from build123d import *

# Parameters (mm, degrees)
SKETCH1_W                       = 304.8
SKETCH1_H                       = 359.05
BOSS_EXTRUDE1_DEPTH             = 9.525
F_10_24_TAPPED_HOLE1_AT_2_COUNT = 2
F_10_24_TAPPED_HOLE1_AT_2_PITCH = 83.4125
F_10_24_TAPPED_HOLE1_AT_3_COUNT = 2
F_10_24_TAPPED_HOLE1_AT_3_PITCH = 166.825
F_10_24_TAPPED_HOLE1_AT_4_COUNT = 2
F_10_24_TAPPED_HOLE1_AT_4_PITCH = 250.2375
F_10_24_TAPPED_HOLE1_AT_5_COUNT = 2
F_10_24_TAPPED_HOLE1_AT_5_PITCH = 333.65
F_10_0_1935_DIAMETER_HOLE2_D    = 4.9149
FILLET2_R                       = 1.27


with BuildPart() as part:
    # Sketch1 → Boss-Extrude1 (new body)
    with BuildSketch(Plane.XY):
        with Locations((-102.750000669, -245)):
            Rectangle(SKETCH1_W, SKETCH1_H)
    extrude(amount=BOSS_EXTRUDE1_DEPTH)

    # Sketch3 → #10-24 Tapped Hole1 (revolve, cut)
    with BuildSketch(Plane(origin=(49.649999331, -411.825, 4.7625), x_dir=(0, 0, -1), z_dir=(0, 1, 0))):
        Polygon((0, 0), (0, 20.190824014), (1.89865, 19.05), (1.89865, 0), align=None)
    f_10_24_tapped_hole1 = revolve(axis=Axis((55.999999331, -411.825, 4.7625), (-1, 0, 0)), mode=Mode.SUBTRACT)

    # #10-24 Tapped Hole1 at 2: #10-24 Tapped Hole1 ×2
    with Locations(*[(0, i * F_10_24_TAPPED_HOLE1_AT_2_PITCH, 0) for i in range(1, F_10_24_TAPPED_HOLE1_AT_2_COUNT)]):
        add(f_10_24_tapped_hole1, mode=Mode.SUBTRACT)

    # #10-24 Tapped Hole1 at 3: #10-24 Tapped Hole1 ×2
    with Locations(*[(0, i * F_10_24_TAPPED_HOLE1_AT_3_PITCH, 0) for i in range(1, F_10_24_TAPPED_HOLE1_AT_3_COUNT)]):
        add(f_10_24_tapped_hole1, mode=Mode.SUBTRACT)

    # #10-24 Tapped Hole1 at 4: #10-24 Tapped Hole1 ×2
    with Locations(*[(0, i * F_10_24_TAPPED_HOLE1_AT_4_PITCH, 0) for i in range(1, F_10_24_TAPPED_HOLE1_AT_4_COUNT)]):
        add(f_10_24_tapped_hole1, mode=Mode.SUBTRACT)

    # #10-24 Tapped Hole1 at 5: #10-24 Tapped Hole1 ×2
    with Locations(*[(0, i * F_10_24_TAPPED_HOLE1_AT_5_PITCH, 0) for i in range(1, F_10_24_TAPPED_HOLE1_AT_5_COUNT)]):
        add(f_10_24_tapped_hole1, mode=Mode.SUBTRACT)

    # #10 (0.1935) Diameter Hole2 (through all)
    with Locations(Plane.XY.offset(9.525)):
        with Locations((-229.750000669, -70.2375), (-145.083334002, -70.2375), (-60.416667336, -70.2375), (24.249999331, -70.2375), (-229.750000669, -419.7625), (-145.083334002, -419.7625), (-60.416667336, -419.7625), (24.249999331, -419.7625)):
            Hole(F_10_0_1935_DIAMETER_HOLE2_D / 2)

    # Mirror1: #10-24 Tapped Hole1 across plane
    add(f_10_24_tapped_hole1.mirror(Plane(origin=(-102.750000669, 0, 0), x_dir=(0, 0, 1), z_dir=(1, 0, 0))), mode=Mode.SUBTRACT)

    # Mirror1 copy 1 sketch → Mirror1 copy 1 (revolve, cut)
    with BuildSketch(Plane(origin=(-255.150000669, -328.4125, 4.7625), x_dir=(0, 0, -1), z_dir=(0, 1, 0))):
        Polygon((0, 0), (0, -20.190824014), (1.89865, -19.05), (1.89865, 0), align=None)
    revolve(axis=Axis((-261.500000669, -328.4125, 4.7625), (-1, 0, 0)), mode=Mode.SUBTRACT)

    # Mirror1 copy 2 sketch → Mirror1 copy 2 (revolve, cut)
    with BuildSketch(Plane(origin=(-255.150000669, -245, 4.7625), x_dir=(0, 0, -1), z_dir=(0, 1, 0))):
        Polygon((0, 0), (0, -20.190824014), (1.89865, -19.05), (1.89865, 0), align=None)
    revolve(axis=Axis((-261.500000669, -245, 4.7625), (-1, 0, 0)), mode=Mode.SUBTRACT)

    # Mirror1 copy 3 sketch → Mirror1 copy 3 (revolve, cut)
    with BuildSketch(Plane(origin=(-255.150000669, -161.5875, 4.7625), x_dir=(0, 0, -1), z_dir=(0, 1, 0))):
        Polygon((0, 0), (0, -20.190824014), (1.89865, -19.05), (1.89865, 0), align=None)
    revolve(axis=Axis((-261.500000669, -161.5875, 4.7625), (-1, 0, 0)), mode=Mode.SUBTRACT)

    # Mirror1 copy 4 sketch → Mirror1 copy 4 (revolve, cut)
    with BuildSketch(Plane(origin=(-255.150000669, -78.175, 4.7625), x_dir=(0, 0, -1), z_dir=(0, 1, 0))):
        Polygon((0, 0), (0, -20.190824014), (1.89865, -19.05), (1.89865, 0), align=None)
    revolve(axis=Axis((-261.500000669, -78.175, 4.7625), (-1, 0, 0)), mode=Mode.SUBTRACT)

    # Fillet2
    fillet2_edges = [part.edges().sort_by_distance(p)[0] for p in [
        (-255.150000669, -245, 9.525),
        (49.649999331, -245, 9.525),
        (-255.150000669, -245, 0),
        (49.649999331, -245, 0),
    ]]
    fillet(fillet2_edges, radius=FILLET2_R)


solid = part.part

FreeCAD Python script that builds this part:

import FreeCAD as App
import Part
import Sketcher
from FreeCAD import Vector
Q = App.Units.Quantity


def edges_at(feature, points):
    """Names of the edges that pass closest to the given points."""
    edges = feature.Shape.Edges
    near = lambda p: min(range(len(edges)), key=lambda i: edges[i].distToShape(Part.Vertex(*p))[0])
    return sorted({f"Edge{near(p) + 1}" for p in points})

doc = App.newDocument("Part")
body = doc.addObject("PartDesign::Body", "Body")

# Sketch on XY plane
sketch1 = body.newObject("Sketcher::SketchObject", "Sketch")
sketch1.AttachmentSupport = (doc.getObject("XY_Plane"), [""])
sketch1.MapMode = "FlatFace"
sketch1.addGeometry([
    Part.LineSegment(Vector(-255.150001, -65.475, 0), Vector(-255.150001, -424.525, 0)),
    Part.LineSegment(Vector(-255.150001, -424.525, 0), Vector(49.649999, -424.525, 0)),
    Part.LineSegment(Vector(49.649999, -424.525, 0), Vector(49.649999, -65.475, 0)),
    Part.LineSegment(Vector(49.649999, -65.475, 0), Vector(-255.150001, -65.475, 0)),
], False)
sketch1.addConstraint([
    Sketcher.Constraint("Coincident", 0, 2, 1, 1),
    Sketcher.Constraint("Coincident", 1, 2, 2, 1),
    Sketcher.Constraint("Coincident", 2, 2, 3, 1),
    Sketcher.Constraint("Coincident", 3, 2, 0, 1),
    Sketcher.Constraint("Vertical", 0),
    Sketcher.Constraint("Horizontal", 1),
    Sketcher.Constraint("Vertical", 2),
    Sketcher.Constraint("Horizontal", 3),
    Sketcher.Constraint("DistanceX", 1, 1, 1, 2, Q("12 in")),
    Sketcher.Constraint("DistanceY", 0, 2, 0, 1, Q("359.05 mm")),
    Sketcher.Constraint("DistanceX", 0, 2, -1, 1, Q("255.150001 mm")),
    Sketcher.Constraint("DistanceY", 0, 2, -1, 1, Q("424.525 mm")),
])
pad1 = body.newObject("PartDesign::Pad", "Pad")
pad1.Profile = sketch1
pad1.Length = Q("0.375 in")

# Sketch on XZ plane
sketch2 = body.newObject("Sketcher::SketchObject", "Sketch001")
sketch2.AttachmentSupport = (doc.getObject("XZ_Plane"), [""])
sketch2.MapMode = "FlatFace"
sketch2.AttachmentOffset = App.Placement(Vector(0, 0, 411.825), App.Rotation())
sketch2.addGeometry([
    Part.LineSegment(Vector(29.459175, 4.7625, 0), Vector(49.649999, 4.7625, 0)),
    Part.LineSegment(Vector(49.649999, 4.7625, 0), Vector(49.649999, 2.86385, 0)),
    Part.LineSegment(Vector(49.649999, 2.86385, 0), Vector(30.599999, 2.86385, 0)),
    Part.LineSegment(Vector(30.599999, 2.86385, 0), Vector(29.459175, 4.7625, 0)),
], False)
sketch2.addGeometry(Part.LineSegment(Vector(49.649999, 4.7625, 0), Vector(29.459175, 4.7625, 0)), True)  # axis
sketch2.addConstraint([
    Sketcher.Constraint("Coincident", 0, 2, 1, 1),
    Sketcher.Constraint("Coincident", 1, 2, 2, 1),
    Sketcher.Constraint("Coincident", 2, 2, 3, 1),
    Sketcher.Constraint("Coincident", 3, 2, 0, 1),
    Sketcher.Constraint("Horizontal", 0),
    Sketcher.Constraint("Vertical", 1),
    Sketcher.Constraint("Horizontal", 2),
    Sketcher.Constraint("Horizontal", 4),
    Sketcher.Constraint("Coincident", 4, 1, 0, 2),
    Sketcher.Constraint("Equal", 0, 4),
    Sketcher.Constraint("Angle", 3, Q("121 deg")),
    Sketcher.Constraint("DistanceX", 2, 2, 2, 1, Q("0.75 in")),
    Sketcher.Constraint("DistanceY", -1, 1, 0, 2, Q("0.1875 in")),
    Sketcher.Constraint("DistanceY", 1, 2, 1, 1, Q("1.89865 mm")),
    Sketcher.Constraint("DistanceX", -1, 1, 0, 2, Q("49.649999 mm")),
])
groove = body.newObject("PartDesign::Groove", "Groove")
groove.Profile = sketch2
groove.ReferenceAxis = (sketch2, ["Axis0"])
groove.Angle = 360
doc.recompute()

linearpattern = body.newObject("PartDesign::LinearPattern", "LinearPattern")
linearpattern.Originals = [groove]
linearpattern.Direction = (doc.getObject("Y_Axis"), [""])
linearpattern.Mode = "offset"
linearpattern.Offset = 83.4125
linearpattern.Occurrences = 2
body.Tip = linearpattern
doc.recompute()

linearpattern2 = body.newObject("PartDesign::LinearPattern", "LinearPattern001")
linearpattern2.Originals = [groove]
linearpattern2.Direction = (doc.getObject("Y_Axis"), [""])
linearpattern2.Mode = "offset"
linearpattern2.Offset = 166.825
linearpattern2.Occurrences = 2
body.Tip = linearpattern2
doc.recompute()

linearpattern3 = body.newObject("PartDesign::LinearPattern", "LinearPattern002")
linearpattern3.Originals = [groove]
linearpattern3.Direction = (doc.getObject("Y_Axis"), [""])
linearpattern3.Mode = "offset"
linearpattern3.Offset = 250.2375
linearpattern3.Occurrences = 2
body.Tip = linearpattern3
doc.recompute()

linearpattern4 = body.newObject("PartDesign::LinearPattern", "LinearPattern003")
linearpattern4.Originals = [groove]
linearpattern4.Direction = (doc.getObject("Y_Axis"), [""])
linearpattern4.Mode = "offset"
linearpattern4.Offset = 333.65
linearpattern4.Occurrences = 2
body.Tip = linearpattern4

# Sketch on XY plane
sketch3 = body.newObject("Sketcher::SketchObject", "Sketch002")
sketch3.AttachmentSupport = (doc.getObject("XY_Plane"), [""])
sketch3.MapMode = "FlatFace"
sketch3.AttachmentOffset = App.Placement(Vector(0, 0, 0.375 * 25.4), App.Rotation())
sketch3.addGeometry([
    Part.Circle(Vector(-229.750001, -70.2375, 0), Vector(0, 0, 1), 2.45745),  # 0
    Part.Circle(Vector(-145.083334, -70.2375, 0), Vector(0, 0, 1), 2.45745),  # 1
    Part.Circle(Vector(-60.416667, -70.2375, 0), Vector(0, 0, 1), 2.45745),  # 2
    Part.Circle(Vector(24.249999, -70.2375, 0), Vector(0, 0, 1), 2.45745),  # 3
    Part.Circle(Vector(-229.750001, -419.7625, 0), Vector(0, 0, 1), 2.45745),  # 4
    Part.Circle(Vector(-145.083334, -419.7625, 0), Vector(0, 0, 1), 2.45745),  # 5
    Part.Circle(Vector(-60.416667, -419.7625, 0), Vector(0, 0, 1), 2.45745),  # 6
    Part.Circle(Vector(24.249999, -419.7625, 0), Vector(0, 0, 1), 2.45745),  # 7
], False)
sketch3.addConstraint([
    Sketcher.Constraint("Equal", 0, 1),
    Sketcher.Constraint("Equal", 1, 2),
    Sketcher.Constraint("Equal", 2, 3),
    Sketcher.Constraint("Equal", 3, 4),
    Sketcher.Constraint("Equal", 4, 5),
    Sketcher.Constraint("Equal", 5, 6),
    Sketcher.Constraint("Equal", 6, 7),
    Sketcher.Constraint("Horizontal", 0, 3, 1, 3),
    Sketcher.Constraint("Horizontal", 1, 3, 2, 3),
    Sketcher.Constraint("Horizontal", 2, 3, 3, 3),
    Sketcher.Constraint("Horizontal", 4, 3, 5, 3),
    Sketcher.Constraint("Horizontal", 5, 3, 6, 3),
    Sketcher.Constraint("Horizontal", 6, 3, 7, 3),
    Sketcher.Constraint("Vertical", 0, 3, 4, 3),
    Sketcher.Constraint("Vertical", 1, 3, 5, 3),
    Sketcher.Constraint("Vertical", 2, 3, 6, 3),
    Sketcher.Constraint("Vertical", 3, 3, 7, 3),
    Sketcher.Constraint("DistanceX", 0, 3, 3, 3, Q("10 in")),
    Sketcher.Constraint("Diameter", 0, Q("0.1935 in")),
    Sketcher.Constraint("DistanceX", 0, 3, -1, 1, Q("229.750001 mm")),
    Sketcher.Constraint("DistanceY", 0, 3, -1, 1, Q("70.2375 mm")),
    Sketcher.Constraint("DistanceY", 4, 3, -1, 1, Q("419.7625 mm")),
    Sketcher.Constraint("DistanceX", 1, 3, -1, 1, Q("145.083334 mm")),
    Sketcher.Constraint("DistanceX", 2, 3, -1, 1, Q("60.416667 mm")),
])
doc.recompute()
hole = body.newObject("PartDesign::Hole", "Hole")
hole.Profile = sketch3
hole.ThreadType = "None"
hole.Diameter = Q("0.1935 in")
hole.DepthType = "ThroughAll"
doc.recompute()

datumplane = body.newObject("PartDesign::Plane", "DatumPlane")
datumplane.AttachmentSupport = (doc.getObject("YZ_Plane"), [""])
datumplane.MapMode = "FlatFace"
datumplane.AttachmentOffset = App.Placement(Vector(0, 0, -102.750001), App.Rotation())
mirrored = body.newObject("PartDesign::Mirrored", "Mirrored")
mirrored.Originals = [groove]
mirrored.MirrorPlane = (datumplane, [""])
body.Tip = mirrored

# Sketch on XZ plane
sketch4 = body.newObject("Sketcher::SketchObject", "Sketch003")
sketch4.AttachmentSupport = (doc.getObject("XZ_Plane"), [""])
sketch4.MapMode = "FlatFace"
sketch4.AttachmentOffset = App.Placement(Vector(0, 0, 328.4125), App.Rotation())
sketch4.addGeometry([
    Part.LineSegment(Vector(-255.150001, 4.7625, 0), Vector(-234.959177, 4.7625, 0)),
    Part.LineSegment(Vector(-234.959177, 4.7625, 0), Vector(-236.100001, 2.86385, 0)),
    Part.LineSegment(Vector(-236.100001, 2.86385, 0), Vector(-255.150001, 2.86385, 0)),
    Part.LineSegment(Vector(-255.150001, 2.86385, 0), Vector(-255.150001, 4.7625, 0)),
], False)
sketch4.addGeometry(Part.LineSegment(Vector(-234.959177, 4.7625, 0), Vector(-255.150001, 4.7625, 0)), True)  # axis
sketch4.addConstraint([
    Sketcher.Constraint("Coincident", 0, 2, 1, 1),
    Sketcher.Constraint("Coincident", 1, 2, 2, 1),
    Sketcher.Constraint("Coincident", 2, 2, 3, 1),
    Sketcher.Constraint("Coincident", 3, 2, 0, 1),
    Sketcher.Constraint("Horizontal", 0),
    Sketcher.Constraint("Horizontal", 2),
    Sketcher.Constraint("Vertical", 3),
    Sketcher.Constraint("Horizontal", 4),
    Sketcher.Constraint("Coincident", 4, 1, 0, 2),
    Sketcher.Constraint("Vertical", 2, 2, 4, 2),
    Sketcher.Constraint("Angle", 1, Q("-121 deg")),
    Sketcher.Constraint("DistanceX", 2, 2, 2, 1, Q("0.75 in")),
    Sketcher.Constraint("DistanceY", -1, 1, 0, 2, Q("0.1875 in")),
    Sketcher.Constraint("DistanceY", 3, 1, 3, 2, Q("1.89865 mm")),
    Sketcher.Constraint("DistanceX", 1, 2, -1, 1, Q("236.100001 mm")),
])
groove2 = body.newObject("PartDesign::Groove", "Groove001")
groove2.Profile = sketch4
groove2.ReferenceAxis = (sketch4, ["Axis0"])
groove2.Angle = 360

# Sketch on XZ plane
sketch5 = body.newObject("Sketcher::SketchObject", "Sketch004")
sketch5.AttachmentSupport = (doc.getObject("XZ_Plane"), [""])
sketch5.MapMode = "FlatFace"
sketch5.AttachmentOffset = App.Placement(Vector(0, 0, 245), App.Rotation())
sketch5.addGeometry([
    Part.LineSegment(Vector(-255.150001, 4.7625, 0), Vector(-234.959177, 4.7625, 0)),
    Part.LineSegment(Vector(-234.959177, 4.7625, 0), Vector(-236.100001, 2.86385, 0)),
    Part.LineSegment(Vector(-236.100001, 2.86385, 0), Vector(-255.150001, 2.86385, 0)),
    Part.LineSegment(Vector(-255.150001, 2.86385, 0), Vector(-255.150001, 4.7625, 0)),
], False)
sketch5.addGeometry(Part.LineSegment(Vector(-234.959177, 4.7625, 0), Vector(-255.150001, 4.7625, 0)), True)  # axis
sketch5.addConstraint([
    Sketcher.Constraint("Coincident", 0, 2, 1, 1),
    Sketcher.Constraint("Coincident", 1, 2, 2, 1),
    Sketcher.Constraint("Coincident", 2, 2, 3, 1),
    Sketcher.Constraint("Coincident", 3, 2, 0, 1),
    Sketcher.Constraint("Horizontal", 0),
    Sketcher.Constraint("Horizontal", 2),
    Sketcher.Constraint("Vertical", 3),
    Sketcher.Constraint("Horizontal", 4),
    Sketcher.Constraint("Coincident", 4, 1, 0, 2),
    Sketcher.Constraint("Vertical", 2, 2, 4, 2),
    Sketcher.Constraint("Angle", 1, Q("-121 deg")),
    Sketcher.Constraint("DistanceX", 2, 2, 2, 1, Q("0.75 in")),
    Sketcher.Constraint("DistanceY", -1, 1, 0, 2, Q("0.1875 in")),
    Sketcher.Constraint("DistanceY", 3, 1, 3, 2, Q("1.89865 mm")),
    Sketcher.Constraint("DistanceX", 1, 2, -1, 1, Q("236.100001 mm")),
])
groove3 = body.newObject("PartDesign::Groove", "Groove002")
groove3.Profile = sketch5
groove3.ReferenceAxis = (sketch5, ["Axis0"])
groove3.Angle = 360

# Sketch on XZ plane
sketch6 = body.newObject("Sketcher::SketchObject", "Sketch005")
sketch6.AttachmentSupport = (doc.getObject("XZ_Plane"), [""])
sketch6.MapMode = "FlatFace"
sketch6.AttachmentOffset = App.Placement(Vector(0, 0, 161.5875), App.Rotation())
sketch6.addGeometry([
    Part.LineSegment(Vector(-255.150001, 4.7625, 0), Vector(-234.959177, 4.7625, 0)),
    Part.LineSegment(Vector(-234.959177, 4.7625, 0), Vector(-236.100001, 2.86385, 0)),
    Part.LineSegment(Vector(-236.100001, 2.86385, 0), Vector(-255.150001, 2.86385, 0)),
    Part.LineSegment(Vector(-255.150001, 2.86385, 0), Vector(-255.150001, 4.7625, 0)),
], False)
sketch6.addGeometry(Part.LineSegment(Vector(-234.959177, 4.7625, 0), Vector(-255.150001, 4.7625, 0)), True)  # axis
sketch6.addConstraint([
    Sketcher.Constraint("Coincident", 0, 2, 1, 1),
    Sketcher.Constraint("Coincident", 1, 2, 2, 1),
    Sketcher.Constraint("Coincident", 2, 2, 3, 1),
    Sketcher.Constraint("Coincident", 3, 2, 0, 1),
    Sketcher.Constraint("Horizontal", 0),
    Sketcher.Constraint("Horizontal", 2),
    Sketcher.Constraint("Vertical", 3),
    Sketcher.Constraint("Horizontal", 4),
    Sketcher.Constraint("Coincident", 4, 1, 0, 2),
    Sketcher.Constraint("Vertical", 2, 2, 4, 2),
    Sketcher.Constraint("Angle", 1, Q("-121 deg")),
    Sketcher.Constraint("DistanceX", 2, 2, 2, 1, Q("0.75 in")),
    Sketcher.Constraint("DistanceY", -1, 1, 0, 2, Q("0.1875 in")),
    Sketcher.Constraint("DistanceY", 3, 1, 3, 2, Q("1.89865 mm")),
    Sketcher.Constraint("DistanceX", 1, 2, -1, 1, Q("236.100001 mm")),
])
groove4 = body.newObject("PartDesign::Groove", "Groove003")
groove4.Profile = sketch6
groove4.ReferenceAxis = (sketch6, ["Axis0"])
groove4.Angle = 360

# Sketch on XZ plane
sketch7 = body.newObject("Sketcher::SketchObject", "Sketch006")
sketch7.AttachmentSupport = (doc.getObject("XZ_Plane"), [""])
sketch7.MapMode = "FlatFace"
sketch7.AttachmentOffset = App.Placement(Vector(0, 0, 78.175), App.Rotation())
sketch7.addGeometry([
    Part.LineSegment(Vector(-255.150001, 4.7625, 0), Vector(-234.959177, 4.7625, 0)),
    Part.LineSegment(Vector(-234.959177, 4.7625, 0), Vector(-236.100001, 2.86385, 0)),
    Part.LineSegment(Vector(-236.100001, 2.86385, 0), Vector(-255.150001, 2.86385, 0)),
    Part.LineSegment(Vector(-255.150001, 2.86385, 0), Vector(-255.150001, 4.7625, 0)),
], False)
sketch7.addGeometry(Part.LineSegment(Vector(-234.959177, 4.7625, 0), Vector(-255.150001, 4.7625, 0)), True)  # axis
sketch7.addConstraint([
    Sketcher.Constraint("Coincident", 0, 2, 1, 1),
    Sketcher.Constraint("Coincident", 1, 2, 2, 1),
    Sketcher.Constraint("Coincident", 2, 2, 3, 1),
    Sketcher.Constraint("Coincident", 3, 2, 0, 1),
    Sketcher.Constraint("Horizontal", 0),
    Sketcher.Constraint("Horizontal", 2),
    Sketcher.Constraint("Vertical", 3),
    Sketcher.Constraint("Horizontal", 4),
    Sketcher.Constraint("Coincident", 4, 1, 0, 2),
    Sketcher.Constraint("Vertical", 2, 2, 4, 2),
    Sketcher.Constraint("Angle", 1, Q("-121 deg")),
    Sketcher.Constraint("DistanceX", 2, 2, 2, 1, Q("0.75 in")),
    Sketcher.Constraint("DistanceY", -1, 1, 0, 2, Q("0.1875 in")),
    Sketcher.Constraint("DistanceY", 3, 1, 3, 2, Q("1.89865 mm")),
    Sketcher.Constraint("DistanceX", 1, 2, -1, 1, Q("236.100001 mm")),
])
groove5 = body.newObject("PartDesign::Groove", "Groove004")
groove5.Profile = sketch7
groove5.ReferenceAxis = (sketch7, ["Axis0"])
groove5.Angle = 360
doc.recompute()

fillet = body.newObject("PartDesign::Fillet", "Fillet")
fillet.Base = (groove5, edges_at(groove5, [
    (-255.15, -245, 9.525),
    (49.65, -245, 9.525),
    (-255.15, -245, 0),
    (49.65, -245, 0),
]))
fillet.Radius = Q("0.05 in")

doc.recompute()
